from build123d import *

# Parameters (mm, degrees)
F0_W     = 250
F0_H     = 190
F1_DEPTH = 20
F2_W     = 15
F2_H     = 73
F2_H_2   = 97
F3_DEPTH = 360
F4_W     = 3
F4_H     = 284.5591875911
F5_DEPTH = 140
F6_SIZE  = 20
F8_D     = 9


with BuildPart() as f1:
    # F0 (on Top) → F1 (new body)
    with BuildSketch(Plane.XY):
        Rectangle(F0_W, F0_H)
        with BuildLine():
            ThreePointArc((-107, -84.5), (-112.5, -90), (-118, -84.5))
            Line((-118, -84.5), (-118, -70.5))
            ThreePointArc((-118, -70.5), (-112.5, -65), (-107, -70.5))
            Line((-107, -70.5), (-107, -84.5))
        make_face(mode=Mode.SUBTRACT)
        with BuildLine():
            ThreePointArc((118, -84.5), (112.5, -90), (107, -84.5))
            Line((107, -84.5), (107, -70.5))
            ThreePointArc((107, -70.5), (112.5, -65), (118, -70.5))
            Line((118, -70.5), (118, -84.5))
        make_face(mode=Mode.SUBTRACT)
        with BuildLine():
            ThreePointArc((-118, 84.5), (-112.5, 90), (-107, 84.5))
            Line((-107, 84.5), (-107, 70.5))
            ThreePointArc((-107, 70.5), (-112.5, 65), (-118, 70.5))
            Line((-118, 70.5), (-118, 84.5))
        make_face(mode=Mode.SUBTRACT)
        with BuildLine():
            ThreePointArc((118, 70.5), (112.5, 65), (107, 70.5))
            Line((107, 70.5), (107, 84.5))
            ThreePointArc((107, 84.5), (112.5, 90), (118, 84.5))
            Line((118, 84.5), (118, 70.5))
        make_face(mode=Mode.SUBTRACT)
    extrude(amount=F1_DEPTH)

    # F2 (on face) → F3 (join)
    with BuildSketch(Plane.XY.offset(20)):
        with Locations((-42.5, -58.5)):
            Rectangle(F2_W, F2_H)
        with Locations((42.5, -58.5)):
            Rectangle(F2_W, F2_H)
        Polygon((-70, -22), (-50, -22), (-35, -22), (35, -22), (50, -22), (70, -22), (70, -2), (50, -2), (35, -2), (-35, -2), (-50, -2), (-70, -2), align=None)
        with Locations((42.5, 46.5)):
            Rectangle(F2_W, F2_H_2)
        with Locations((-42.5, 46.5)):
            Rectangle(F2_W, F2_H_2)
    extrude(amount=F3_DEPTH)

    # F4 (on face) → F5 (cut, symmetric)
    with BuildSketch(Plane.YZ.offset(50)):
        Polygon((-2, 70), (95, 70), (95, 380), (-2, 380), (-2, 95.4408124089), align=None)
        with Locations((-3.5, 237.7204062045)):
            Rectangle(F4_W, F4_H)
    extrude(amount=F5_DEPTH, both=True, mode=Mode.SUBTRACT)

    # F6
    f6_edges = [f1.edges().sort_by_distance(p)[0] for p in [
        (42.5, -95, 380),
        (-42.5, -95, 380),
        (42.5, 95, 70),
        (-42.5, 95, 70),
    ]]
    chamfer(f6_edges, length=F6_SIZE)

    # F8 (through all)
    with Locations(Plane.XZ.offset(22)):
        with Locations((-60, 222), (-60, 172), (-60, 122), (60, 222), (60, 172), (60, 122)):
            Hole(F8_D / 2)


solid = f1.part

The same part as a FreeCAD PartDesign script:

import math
import FreeCAD as App
import Part
import Sketcher
Q = App.Units.Quantity


def edges_at(feature, points):
    """Names of the edges that pass closest to the given points."""
    edges = feature.Shape.Edges
    near = lambda p: min(range(len(edges)), key=lambda i: edges[i].distToShape(Part.Vertex(*p))[0])
    return sorted({f"Edge{near(p) + 1}" for p in points})

doc = App.newDocument("Part")
body = doc.addObject("PartDesign::Body", "Body")

# Sketch on XY plane
sketch1 = body.newObject("Sketcher::SketchObject", "Sketch")
sketch1.AttachmentSupport = (doc.getObject("XY_Plane"), [""])
sketch1.MapMode = "FlatFace"
sketch1.addGeometry(Part.LineSegment(App.Vector(-125, 95, 0), App.Vector(-125, -95, 0)), False)
sketch1.addGeometry(Part.LineSegment(App.Vector(-125, -95, 0), App.Vector(125, -95, 0)), False)
sketch1.addGeometry(Part.LineSegment(App.Vector(125, -95, 0), App.Vector(125, 95, 0)), False)
sketch1.addGeometry(Part.LineSegment(App.Vector(125, 95, 0), App.Vector(-125, 95, 0)), False)
sketch1.addGeometry(Part.LineSegment(App.Vector(-107, -70, 0), App.Vector(-107, -84, 0)), False)
sketch1.addGeometry(Part.ArcOfCircle(Part.Circle(App.Vector(-112, -84, 0), App.Vector(0, 0, 1), 6), math.radians(180), math.radians(360)), False)
sketch1.addGeometry(Part.LineSegment(App.Vector(-118, -84, 0), App.Vector(-118, -70, 0)), False)
sketch1.addGeometry(Part.ArcOfCircle(Part.Circle(App.Vector(-112, -70, 0), App.Vector(0, 0, 1), 6), math.radians(0), math.radians(180)), False)
sketch1.addGeometry(Part.LineSegment(App.Vector(118, -70, 0), App.Vector(118, -84, 0)), False)
sketch1.addGeometry(Part.ArcOfCircle(Part.Circle(App.Vector(112, -84, 0), App.Vector(0, 0, 1), 6), math.radians(180), math.radians(360)), False)
sketch1.addGeometry(Part.LineSegment(App.Vector(107, -84, 0), App.Vector(107, -70, 0)), False)
sketch1.addGeometry(Part.ArcOfCircle(Part.Circle(App.Vector(112, -70, 0), App.Vector(0, 0, 1), 6), math.radians(0), math.radians(180)), False)
sketch1.addGeometry(Part.LineSegment(App.Vector(-118, 70, 0), App.Vector(-118, 84, 0)), False)
sketch1.addGeometry(Part.ArcOfCircle(Part.Circle(App.Vector(-112, 84, 0), App.Vector(0, 0, 1), 6), math.radians(0), math.radians(180)), False)
sketch1.addGeometry(Part.LineSegment(App.Vector(-107, 84, 0), App.Vector(-107, 70, 0)), False)
sketch1.addGeometry(Part.ArcOfCircle(Part.Circle(App.Vector(-112, 70, 0), App.Vector(0, 0, 1), 6), math.radians(180), math.radians(360)), False)
sketch1.addGeometry(Part.LineSegment(App.Vector(118, 84, 0), App.Vector(118, 70, 0)), False)
sketch1.addGeometry(Part.ArcOfCircle(Part.Circle(App.Vector(112, 70, 0), App.Vector(0, 0, 1), 6), math.radians(180), math.radians(360)), False)
sketch1.addGeometry(Part.LineSegment(App.Vector(107, 70, 0), App.Vector(107, 84, 0)), False)
sketch1.addGeometry(Part.ArcOfCircle(Part.Circle(App.Vector(112, 84, 0), App.Vector(0, 0, 1), 6), math.radians(0), math.radians(180)), False)
sketch1.addConstraint(Sketcher.Constraint("Coincident", 0, 2, 1, 1))
sketch1.addConstraint(Sketcher.Constraint("Coincident", 1, 2, 2, 1))
sketch1.addConstraint(Sketcher.Constraint("Coincident", 2, 2, 3, 1))
sketch1.addConstraint(Sketcher.Constraint("Coincident", 3, 2, 0, 1))
sketch1.addConstraint(Sketcher.Constraint("Tangent", 4, 2, 5, 2))
sketch1.addConstraint(Sketcher.Constraint("Tangent", 5, 1, 6, 1))
sketch1.addConstraint(Sketcher.Constraint("Tangent", 6, 2, 7, 2))
sketch1.addConstraint(Sketcher.Constraint("Tangent", 7, 1, 4, 1))
sketch1.addConstraint(Sketcher.Constraint("Tangent", 8, 2, 9, 2))
sketch1.addConstraint(Sketcher.Constraint("Tangent", 9, 1, 10, 1))
sketch1.addConstraint(Sketcher.Constraint("Tangent", 10, 2, 11, 2))
sketch1.addConstraint(Sketcher.Constraint("Tangent", 11, 1, 8, 1))
sketch1.addConstraint(Sketcher.Constraint("Tangent", 12, 2, 13, 2))
sketch1.addConstraint(Sketcher.Constraint("Tangent", 13, 1, 14, 1))
sketch1.addConstraint(Sketcher.Constraint("Tangent", 14, 2, 15, 2))
sketch1.addConstraint(Sketcher.Constraint("Tangent", 15, 1, 12, 1))
sketch1.addConstraint(Sketcher.Constraint("Tangent", 16, 2, 17, 2))
sketch1.addConstraint(Sketcher.Constraint("Tangent", 17, 1, 18, 1))
sketch1.addConstraint(Sketcher.Constraint("Tangent", 18, 2, 19, 2))
sketch1.addConstraint(Sketcher.Constraint("Tangent", 19, 1, 16, 1))
sketch1.addConstraint(Sketcher.Constraint("Vertical", 0))
sketch1.addConstraint(Sketcher.Constraint("Horizontal", 1))
sketch1.addConstraint(Sketcher.Constraint("Vertical", 2))
sketch1.addConstraint(Sketcher.Constraint("Horizontal", 3))
sketch1.addConstraint(Sketcher.Constraint("Vertical", 4))
sketch1.addConstraint(Sketcher.Constraint("Vertical", 6))
sketch1.addConstraint(Sketcher.Constraint("Vertical", 8))
sketch1.addConstraint(Sketcher.Constraint("Vertical", 10))
sketch1.addConstraint(Sketcher.Constraint("Vertical", 12))
sketch1.addConstraint(Sketcher.Constraint("Vertical", 14))
sketch1.addConstraint(Sketcher.Constraint("Vertical", 16))
sketch1.addConstraint(Sketcher.Constraint("Vertical", 18))
sketch1.addConstraint(Sketcher.Constraint("Equal", 7, 9))
sketch1.addConstraint(Sketcher.Constraint("Equal", 11, 13))
sketch1.addConstraint(Sketcher.Constraint("Equal", 15, 17))
sketch1.addConstraint(Sketcher.Constraint("Symmetric", 9, 3, 13, 3, -1, 1))
sketch1.addConstraint(Sketcher.Constraint("Symmetric", 7, 3, 17, 3, -1, 1))
sketch1.addConstraint(Sketcher.Constraint("Symmetric", 0, 2, 2, 2, -1, 1))
sketch1.addConstraint(Sketcher.Constraint("Symmetric", 5, 3, 9, 3, -2))
sketch1.addConstraint(Sketcher.Constraint("Horizontal", 7, 3, 11, 3))
sketch1.addConstraint(Sketcher.Constraint("Horizontal", 15, 3, 17, 3))
sketch1.addConstraint(Sketcher.Constraint("Horizontal", 13, 3, 19, 3))
sketch1.addConstraint(Sketcher.Constraint("Radius", 5, Q("5.5 mm")))
sketch1.addConstraint(Sketcher.Constraint("DistanceX", 1, 1, 1, 2, Q("250 mm")))
sketch1.addConstraint(Sketcher.Constraint("DistanceY", 0, 2, 0, 1, Q("190 mm")))
sketch1.addConstraint(Sketcher.Constraint("DistanceY", 4, 2, 4, 1, Q("14 mm")))
sketch1.addConstraint(Sketcher.Constraint("DistanceX", 4, 2, -1, 1, Q("107 mm")))
sketch1.addConstraint(Sketcher.Constraint("DistanceY", 7, 3, 13, 3, Q("155 mm")))
pad1 = body.newObject("PartDesign::Pad", "Pad")
pad1.Profile = sketch1
pad1.Length = 20

# Sketch on XY plane
sketch2 = body.newObject("Sketcher::SketchObject", "Sketch001")
sketch2.AttachmentSupport = (doc.getObject("XY_Plane"), [""])
sketch2.MapMode = "FlatFace"
sketch2.AttachmentOffset = App.Placement(App.Vector(0, 0, 20), App.Rotation())
sketch2.addGeometry(Part.LineSegment(App.Vector(-50, -22, 0), App.Vector(-50, -95, 0)), False)
sketch2.addGeometry(Part.LineSegment(App.Vector(-50, -95, 0), App.Vector(-35, -95, 0)), False)
sketch2.addGeometry(Part.LineSegment(App.Vector(-35, -95, 0), App.Vector(-35, -22, 0)), False)
sketch2.addGeometry(Part.LineSegment(App.Vector(-35, -22, 0), App.Vector(35, -22, 0)), False)
sketch2.addGeometry(Part.LineSegment(App.Vector(35, -22, 0), App.Vector(35, -95, 0)), False)
sketch2.addGeometry(Part.LineSegment(App.Vector(35, -95, 0), App.Vector(50, -95, 0)), False)
sketch2.addGeometry(Part.LineSegment(App.Vector(50, -95, 0), App.Vector(50, -22, 0)), False)
sketch2.addGeometry(Part.LineSegment(App.Vector(50, -22, 0), App.Vector(70, -22, 0)), False)
sketch2.addGeometry(Part.LineSegment(App.Vector(70, -22, 0), App.Vector(70, -2, 0)), False)
sketch2.addGeometry(Part.LineSegment(App.Vector(70, -2, 0), App.Vector(50, -2, 0)), False)
sketch2.addGeometry(Part.LineSegment(App.Vector(50, -2, 0), App.Vector(50, 95, 0)), False)
sketch2.addGeometry(Part.LineSegment(App.Vector(50, 95, 0), App.Vector(35, 95, 0)), False)
sketch2.addGeometry(Part.LineSegment(App.Vector(35, 95, 0), App.Vector(35, -2, 0)), False)
sketch2.addGeometry(Part.LineSegment(App.Vector(35, -2, 0), App.Vector(-35, -2, 0)), False)
sketch2.addGeometry(Part.LineSegment(App.Vector(-35, -2, 0), App.Vector(-35, 95, 0)), False)
sketch2.addGeometry(Part.LineSegment(App.Vector(-35, 95, 0), App.Vector(-50, 95, 0)), False)
sketch2.addGeometry(Part.LineSegment(App.Vector(-50, 95, 0), App.Vector(-50, -2, 0)), False)
sketch2.addGeometry(Part.LineSegment(App.Vector(-50, -2, 0), App.Vector(-70, -2, 0)), False)
sketch2.addGeometry(Part.LineSegment(App.Vector(-70, -2, 0), App.Vector(-70, -22, 0)), False)
sketch2.addGeometry(Part.LineSegment(App.Vector(-70, -22, 0), App.Vector(-50, -22, 0)), False)
sketch2.addConstraint(Sketcher.Constraint("Coincident", 0, 2, 1, 1))
sketch2.addConstraint(Sketcher.Constraint("Coincident", 1, 2, 2, 1))
sketch2.addConstraint(Sketcher.Constraint("Coincident", 2, 2, 3, 1))
sketch2.addConstraint(Sketcher.Constraint("Coincident", 3, 2, 4, 1))
sketch2.addConstraint(Sketcher.Constraint("Coincident", 4, 2, 5, 1))
sketch2.addConstraint(Sketcher.Constraint("Coincident", 5, 2, 6, 1))
sketch2.addConstraint(Sketcher.Constraint("Coincident", 6, 2, 7, 1))
sketch2.addConstraint(Sketcher.Constraint("Coincident", 7, 2, 8, 1))
sketch2.addConstraint(Sketcher.Constraint("Coincident", 8, 2, 9, 1))
sketch2.addConstraint(Sketcher.Constraint("Coincident", 9, 2, 10, 1))
sketch2.addConstraint(Sketcher.Constraint("Coincident", 10, 2, 11, 1))
sketch2.addConstraint(Sketcher.Constraint("Coincident", 11, 2, 12, 1))
sketch2.addConstraint(Sketcher.Constraint("Coincident", 12, 2, 13, 1))
sketch2.addConstraint(Sketcher.Constraint("Coincident", 13, 2, 14, 1))
sketch2.addConstraint(Sketcher.Constraint("Coincident", 14, 2, 15, 1))
sketch2.addConstraint(Sketcher.Constraint("Coincident", 15, 2, 16, 1))
sketch2.addConstraint(Sketcher.Constraint("Coincident", 16, 2, 17, 1))
sketch2.addConstraint(Sketcher.Constraint("Coincident", 17, 2, 18, 1))
sketch2.addConstraint(Sketcher.Constraint("Coincident", 18, 2, 19, 1))
sketch2.addConstraint(Sketcher.Constraint("Coincident", 19, 2, 0, 1))
sketch2.addConstraint(Sketcher.Constraint("Vertical", 0))
sketch2.addConstraint(Sketcher.Constraint("Horizontal", 1))
sketch2.addConstraint(Sketcher.Constraint("Vertical", 2))
sketch2.addConstraint(Sketcher.Constraint("Horizontal", 3))
sketch2.addConstraint(Sketcher.Constraint("Vertical", 4))
sketch2.addConstraint(Sketcher.Constraint("Horizontal", 5))
sketch2.addConstraint(Sketcher.Constraint("Vertical", 6))
sketch2.addConstraint(Sketcher.Constraint("Horizontal", 7))
sketch2.addConstraint(Sketcher.Constraint("Vertical", 8))
sketch2.addConstraint(Sketcher.Constraint("Horizontal", 9))
sketch2.addConstraint(Sketcher.Constraint("Vertical", 10))
sketch2.addConstraint(Sketcher.Constraint("Horizontal", 11))
sketch2.addConstraint(Sketcher.Constraint("Vertical", 12))
sketch2.addConstraint(Sketcher.Constraint("Horizontal", 13))
sketch2.addConstraint(Sketcher.Constraint("Vertical", 14))
sketch2.addConstraint(Sketcher.Constraint("Horizontal", 15))
sketch2.addConstraint(Sketcher.Constraint("Vertical", 16))
sketch2.addConstraint(Sketcher.Constraint("Horizontal", 17))
sketch2.addConstraint(Sketcher.Constraint("Vertical", 18))
sketch2.addConstraint(Sketcher.Constraint("Horizontal", 19))
sketch2.addConstraint(Sketcher.Constraint("Symmetric", 0, 2, 10, 2, -1, 1))
sketch2.addConstraint(Sketcher.Constraint("Symmetric", 4, 2, 14, 2, -1, 1))
sketch2.addConstraint(Sketcher.Constraint("Symmetric", 1, 2, 4, 2, -2))
sketch2.addConstraint(Sketcher.Constraint("Symmetric", 9, 2, 16, 2, -2))
sketch2.addConstraint(Sketcher.Constraint("Symmetric", 7, 2, 18, 2, -2))
sketch2.addConstraint(Sketcher.Constraint("Horizontal", 3, 2, 6, 2))
sketch2.addConstraint(Sketcher.Constraint("Horizontal", 9, 2, 12, 2))
sketch2.addConstraint(Sketcher.Constraint("Vertical", 6, 2, 9, 2))
sketch2.addConstraint(Sketcher.Constraint("Vertical", 4, 2, 11, 2))
sketch2.addConstraint(Sketcher.Constraint("Equal", 19, 8))
sketch2.addConstraint(Sketcher.Constraint("DistanceX", 1, 1, 1, 2, Q("15 mm")))
sketch2.addConstraint(Sketcher.Constraint("DistanceX", 3, 1, 3, 2, Q("70 mm")))
sketch2.addConstraint(Sketcher.Constraint("DistanceX", 7, 1, 7, 2, Q("20 mm")))
sketch2.addConstraint(Sketcher.Constraint("DistanceY", 0, 2, 0, 1, Q("73 mm")))
sketch2.addConstraint(Sketcher.Constraint("DistanceY", 10, 1, 10, 2, Q("97 mm")))
pad2 = body.newObject("PartDesign::Pad", "Pad001")
pad2.Profile = sketch2
pad2.Length = 360

# Sketch on YZ plane
sketch3 = body.newObject("Sketcher::SketchObject", "Sketch002")
sketch3.AttachmentSupport = (doc.getObject("YZ_Plane"), [""])
sketch3.MapMode = "FlatFace"
sketch3.AttachmentOffset = App.Placement(App.Vector(0, 0, 50), App.Rotation())
sketch3.addGeometry(Part.LineSegment(App.Vector(-2, 70, 0), App.Vector(95, 70, 0)), False)
sketch3.addGeometry(Part.LineSegment(App.Vector(95, 70, 0), App.Vector(95, 380, 0)), False)
sketch3.addGeometry(Part.LineSegment(App.Vector(95, 380, 0), App.Vector(-5, 380, 0)), False)
sketch3.addGeometry(Part.LineSegment(App.Vector(-5, 380, 0), App.Vector(-5, 95.4, 0)), False)
sketch3.addGeometry(Part.LineSegment(App.Vector(-5, 95.4, 0), App.Vector(-2, 95.4, 0)), False)
sketch3.addGeometry(Part.LineSegment(App.Vector(-2, 95.4, 0), App.Vector(-2, 70, 0)), False)
sketch3.addConstraint(Sketcher.Constraint("Coincident", 0, 2, 1, 1))
sketch3.addConstraint(Sketcher.Constraint("Coincident", 1, 2, 2, 1))
sketch3.addConstraint(Sketcher.Constraint("Coincident", 2, 2, 3, 1))
sketch3.addConstraint(Sketcher.Constraint("Coincident", 3, 2, 4, 1))
sketch3.addConstraint(Sketcher.Constraint("Coincident", 4, 2, 5, 1))
sketch3.addConstraint(Sketcher.Constraint("Coincident", 5, 2, 0, 1))
sketch3.addConstraint(Sketcher.Constraint("Horizontal", 0))
sketch3.addConstraint(Sketcher.Constraint("Vertical", 1))
sketch3.addConstraint(Sketcher.Constraint("Horizontal", 2))
sketch3.addConstraint(Sketcher.Constraint("Vertical", 3))
sketch3.addConstraint(Sketcher.Constraint("Horizontal", 4))
sketch3.addConstraint(Sketcher.Constraint("Vertical", 5))
sketch3.addConstraint(Sketcher.Constraint("DistanceX", 0, 1, 0, 2, Q("97 mm")))
sketch3.addConstraint(Sketcher.Constraint("DistanceX", 2, 2, 2, 1, Q("100 mm")))
sketch3.addConstraint(Sketcher.Constraint("DistanceY", 1, 1, 1, 2, Q("310 mm")))
sketch3.addConstraint(Sketcher.Constraint("DistanceX", -1, 1, 0, 2, Q("95 mm")))
sketch3.addConstraint(Sketcher.Constraint("DistanceY", -1, 1, 0, 2, Q("70 mm")))
sketch3.addConstraint(Sketcher.Constraint("DistanceY", 3, 2, 3, 1, Q("284.559188 mm")))
pocket1 = body.newObject("PartDesign::Pocket", "Pocket")
pocket1.Profile = sketch3
pocket1.Length = 280
pocket1.Midplane = True
doc.recompute()

chamfer = body.newObject("PartDesign::Chamfer", "Chamfer")
chamfer.Base = (pocket1, edges_at(pocket1, [
    (42.5, -95, 380),
    (-42.5, -95, 380),
    (42.5, 95, 70),
    (-42.5, 95, 70),
]))
chamfer.Size = 20

# Sketch on XZ plane
sketch4 = body.newObject("Sketcher::SketchObject", "Sketch003")
sketch4.AttachmentSupport = (doc.getObject("XZ_Plane"), [""])
sketch4.MapMode = "FlatFace"
sketch4.AttachmentOffset = App.Placement(App.Vector(0, 0, 22), App.Rotation())
sketch4.addGeometry(Part.Circle(App.Vector(-60, 222, 0), App.Vector(0, 0, 1), 4.5), False)
sketch4.addGeometry(Part.Circle(App.Vector(-60, 172, 0), App.Vector(0, 0, 1), 4.5), False)
sketch4.addGeometry(Part.Circle(App.Vector(-60, 122, 0), App.Vector(0, 0, 1), 4.5), False)
sketch4.addGeometry(Part.Circle(App.Vector(60, 222, 0), App.Vector(0, 0, 1), 4.5), False)
sketch4.addGeometry(Part.Circle(App.Vector(60, 172, 0), App.Vector(0, 0, 1), 4.5), False)
sketch4.addGeometry(Part.Circle(App.Vector(60, 122, 0), App.Vector(0, 0, 1), 4.5), False)
sketch4.addConstraint(Sketcher.Constraint("Equal", 0, 1))
sketch4.addConstraint(Sketcher.Constraint("Equal", 1, 2))
sketch4.addConstraint(Sketcher.Constraint("Equal", 2, 3))
sketch4.addConstraint(Sketcher.Constraint("Equal", 3, 4))
sketch4.addConstraint(Sketcher.Constraint("Equal", 4, 5))
sketch4.addConstraint(Sketcher.Constraint("Symmetric", 0, 3, 3, 3, -2))
sketch4.addConstraint(Sketcher.Constraint("Symmetric", 1, 3, 4, 3, -2))
sketch4.addConstraint(Sketcher.Constraint("Symmetric", 2, 3, 5, 3, -2))
sketch4.addConstraint(Sketcher.Constraint("Vertical", 0, 3, 1, 3))
sketch4.addConstraint(Sketcher.Constraint("Vertical", 1, 3, 2, 3))
sketch4.addConstraint(Sketcher.Constraint("Diameter", 0, Q("9 mm")))
sketch4.addConstraint(Sketcher.Constraint("DistanceX", 0, 3, -1, 1, Q("60 mm")))
sketch4.addConstraint(Sketcher.Constraint("DistanceY", -1, 1, 0, 3, Q("222 mm")))
sketch4.addConstraint(Sketcher.Constraint("DistanceY", -1, 1, 1, 3, Q("172 mm")))
sketch4.addConstraint(Sketcher.Constraint("DistanceY", -1, 1, 2, 3, Q("122 mm")))
doc.recompute()
hole = body.newObject("PartDesign::Hole", "Hole")
hole.Profile = sketch4
hole.ThreadType = "None"
hole.Diameter = 9
hole.DepthType = "ThroughAll"

doc.recompute()
